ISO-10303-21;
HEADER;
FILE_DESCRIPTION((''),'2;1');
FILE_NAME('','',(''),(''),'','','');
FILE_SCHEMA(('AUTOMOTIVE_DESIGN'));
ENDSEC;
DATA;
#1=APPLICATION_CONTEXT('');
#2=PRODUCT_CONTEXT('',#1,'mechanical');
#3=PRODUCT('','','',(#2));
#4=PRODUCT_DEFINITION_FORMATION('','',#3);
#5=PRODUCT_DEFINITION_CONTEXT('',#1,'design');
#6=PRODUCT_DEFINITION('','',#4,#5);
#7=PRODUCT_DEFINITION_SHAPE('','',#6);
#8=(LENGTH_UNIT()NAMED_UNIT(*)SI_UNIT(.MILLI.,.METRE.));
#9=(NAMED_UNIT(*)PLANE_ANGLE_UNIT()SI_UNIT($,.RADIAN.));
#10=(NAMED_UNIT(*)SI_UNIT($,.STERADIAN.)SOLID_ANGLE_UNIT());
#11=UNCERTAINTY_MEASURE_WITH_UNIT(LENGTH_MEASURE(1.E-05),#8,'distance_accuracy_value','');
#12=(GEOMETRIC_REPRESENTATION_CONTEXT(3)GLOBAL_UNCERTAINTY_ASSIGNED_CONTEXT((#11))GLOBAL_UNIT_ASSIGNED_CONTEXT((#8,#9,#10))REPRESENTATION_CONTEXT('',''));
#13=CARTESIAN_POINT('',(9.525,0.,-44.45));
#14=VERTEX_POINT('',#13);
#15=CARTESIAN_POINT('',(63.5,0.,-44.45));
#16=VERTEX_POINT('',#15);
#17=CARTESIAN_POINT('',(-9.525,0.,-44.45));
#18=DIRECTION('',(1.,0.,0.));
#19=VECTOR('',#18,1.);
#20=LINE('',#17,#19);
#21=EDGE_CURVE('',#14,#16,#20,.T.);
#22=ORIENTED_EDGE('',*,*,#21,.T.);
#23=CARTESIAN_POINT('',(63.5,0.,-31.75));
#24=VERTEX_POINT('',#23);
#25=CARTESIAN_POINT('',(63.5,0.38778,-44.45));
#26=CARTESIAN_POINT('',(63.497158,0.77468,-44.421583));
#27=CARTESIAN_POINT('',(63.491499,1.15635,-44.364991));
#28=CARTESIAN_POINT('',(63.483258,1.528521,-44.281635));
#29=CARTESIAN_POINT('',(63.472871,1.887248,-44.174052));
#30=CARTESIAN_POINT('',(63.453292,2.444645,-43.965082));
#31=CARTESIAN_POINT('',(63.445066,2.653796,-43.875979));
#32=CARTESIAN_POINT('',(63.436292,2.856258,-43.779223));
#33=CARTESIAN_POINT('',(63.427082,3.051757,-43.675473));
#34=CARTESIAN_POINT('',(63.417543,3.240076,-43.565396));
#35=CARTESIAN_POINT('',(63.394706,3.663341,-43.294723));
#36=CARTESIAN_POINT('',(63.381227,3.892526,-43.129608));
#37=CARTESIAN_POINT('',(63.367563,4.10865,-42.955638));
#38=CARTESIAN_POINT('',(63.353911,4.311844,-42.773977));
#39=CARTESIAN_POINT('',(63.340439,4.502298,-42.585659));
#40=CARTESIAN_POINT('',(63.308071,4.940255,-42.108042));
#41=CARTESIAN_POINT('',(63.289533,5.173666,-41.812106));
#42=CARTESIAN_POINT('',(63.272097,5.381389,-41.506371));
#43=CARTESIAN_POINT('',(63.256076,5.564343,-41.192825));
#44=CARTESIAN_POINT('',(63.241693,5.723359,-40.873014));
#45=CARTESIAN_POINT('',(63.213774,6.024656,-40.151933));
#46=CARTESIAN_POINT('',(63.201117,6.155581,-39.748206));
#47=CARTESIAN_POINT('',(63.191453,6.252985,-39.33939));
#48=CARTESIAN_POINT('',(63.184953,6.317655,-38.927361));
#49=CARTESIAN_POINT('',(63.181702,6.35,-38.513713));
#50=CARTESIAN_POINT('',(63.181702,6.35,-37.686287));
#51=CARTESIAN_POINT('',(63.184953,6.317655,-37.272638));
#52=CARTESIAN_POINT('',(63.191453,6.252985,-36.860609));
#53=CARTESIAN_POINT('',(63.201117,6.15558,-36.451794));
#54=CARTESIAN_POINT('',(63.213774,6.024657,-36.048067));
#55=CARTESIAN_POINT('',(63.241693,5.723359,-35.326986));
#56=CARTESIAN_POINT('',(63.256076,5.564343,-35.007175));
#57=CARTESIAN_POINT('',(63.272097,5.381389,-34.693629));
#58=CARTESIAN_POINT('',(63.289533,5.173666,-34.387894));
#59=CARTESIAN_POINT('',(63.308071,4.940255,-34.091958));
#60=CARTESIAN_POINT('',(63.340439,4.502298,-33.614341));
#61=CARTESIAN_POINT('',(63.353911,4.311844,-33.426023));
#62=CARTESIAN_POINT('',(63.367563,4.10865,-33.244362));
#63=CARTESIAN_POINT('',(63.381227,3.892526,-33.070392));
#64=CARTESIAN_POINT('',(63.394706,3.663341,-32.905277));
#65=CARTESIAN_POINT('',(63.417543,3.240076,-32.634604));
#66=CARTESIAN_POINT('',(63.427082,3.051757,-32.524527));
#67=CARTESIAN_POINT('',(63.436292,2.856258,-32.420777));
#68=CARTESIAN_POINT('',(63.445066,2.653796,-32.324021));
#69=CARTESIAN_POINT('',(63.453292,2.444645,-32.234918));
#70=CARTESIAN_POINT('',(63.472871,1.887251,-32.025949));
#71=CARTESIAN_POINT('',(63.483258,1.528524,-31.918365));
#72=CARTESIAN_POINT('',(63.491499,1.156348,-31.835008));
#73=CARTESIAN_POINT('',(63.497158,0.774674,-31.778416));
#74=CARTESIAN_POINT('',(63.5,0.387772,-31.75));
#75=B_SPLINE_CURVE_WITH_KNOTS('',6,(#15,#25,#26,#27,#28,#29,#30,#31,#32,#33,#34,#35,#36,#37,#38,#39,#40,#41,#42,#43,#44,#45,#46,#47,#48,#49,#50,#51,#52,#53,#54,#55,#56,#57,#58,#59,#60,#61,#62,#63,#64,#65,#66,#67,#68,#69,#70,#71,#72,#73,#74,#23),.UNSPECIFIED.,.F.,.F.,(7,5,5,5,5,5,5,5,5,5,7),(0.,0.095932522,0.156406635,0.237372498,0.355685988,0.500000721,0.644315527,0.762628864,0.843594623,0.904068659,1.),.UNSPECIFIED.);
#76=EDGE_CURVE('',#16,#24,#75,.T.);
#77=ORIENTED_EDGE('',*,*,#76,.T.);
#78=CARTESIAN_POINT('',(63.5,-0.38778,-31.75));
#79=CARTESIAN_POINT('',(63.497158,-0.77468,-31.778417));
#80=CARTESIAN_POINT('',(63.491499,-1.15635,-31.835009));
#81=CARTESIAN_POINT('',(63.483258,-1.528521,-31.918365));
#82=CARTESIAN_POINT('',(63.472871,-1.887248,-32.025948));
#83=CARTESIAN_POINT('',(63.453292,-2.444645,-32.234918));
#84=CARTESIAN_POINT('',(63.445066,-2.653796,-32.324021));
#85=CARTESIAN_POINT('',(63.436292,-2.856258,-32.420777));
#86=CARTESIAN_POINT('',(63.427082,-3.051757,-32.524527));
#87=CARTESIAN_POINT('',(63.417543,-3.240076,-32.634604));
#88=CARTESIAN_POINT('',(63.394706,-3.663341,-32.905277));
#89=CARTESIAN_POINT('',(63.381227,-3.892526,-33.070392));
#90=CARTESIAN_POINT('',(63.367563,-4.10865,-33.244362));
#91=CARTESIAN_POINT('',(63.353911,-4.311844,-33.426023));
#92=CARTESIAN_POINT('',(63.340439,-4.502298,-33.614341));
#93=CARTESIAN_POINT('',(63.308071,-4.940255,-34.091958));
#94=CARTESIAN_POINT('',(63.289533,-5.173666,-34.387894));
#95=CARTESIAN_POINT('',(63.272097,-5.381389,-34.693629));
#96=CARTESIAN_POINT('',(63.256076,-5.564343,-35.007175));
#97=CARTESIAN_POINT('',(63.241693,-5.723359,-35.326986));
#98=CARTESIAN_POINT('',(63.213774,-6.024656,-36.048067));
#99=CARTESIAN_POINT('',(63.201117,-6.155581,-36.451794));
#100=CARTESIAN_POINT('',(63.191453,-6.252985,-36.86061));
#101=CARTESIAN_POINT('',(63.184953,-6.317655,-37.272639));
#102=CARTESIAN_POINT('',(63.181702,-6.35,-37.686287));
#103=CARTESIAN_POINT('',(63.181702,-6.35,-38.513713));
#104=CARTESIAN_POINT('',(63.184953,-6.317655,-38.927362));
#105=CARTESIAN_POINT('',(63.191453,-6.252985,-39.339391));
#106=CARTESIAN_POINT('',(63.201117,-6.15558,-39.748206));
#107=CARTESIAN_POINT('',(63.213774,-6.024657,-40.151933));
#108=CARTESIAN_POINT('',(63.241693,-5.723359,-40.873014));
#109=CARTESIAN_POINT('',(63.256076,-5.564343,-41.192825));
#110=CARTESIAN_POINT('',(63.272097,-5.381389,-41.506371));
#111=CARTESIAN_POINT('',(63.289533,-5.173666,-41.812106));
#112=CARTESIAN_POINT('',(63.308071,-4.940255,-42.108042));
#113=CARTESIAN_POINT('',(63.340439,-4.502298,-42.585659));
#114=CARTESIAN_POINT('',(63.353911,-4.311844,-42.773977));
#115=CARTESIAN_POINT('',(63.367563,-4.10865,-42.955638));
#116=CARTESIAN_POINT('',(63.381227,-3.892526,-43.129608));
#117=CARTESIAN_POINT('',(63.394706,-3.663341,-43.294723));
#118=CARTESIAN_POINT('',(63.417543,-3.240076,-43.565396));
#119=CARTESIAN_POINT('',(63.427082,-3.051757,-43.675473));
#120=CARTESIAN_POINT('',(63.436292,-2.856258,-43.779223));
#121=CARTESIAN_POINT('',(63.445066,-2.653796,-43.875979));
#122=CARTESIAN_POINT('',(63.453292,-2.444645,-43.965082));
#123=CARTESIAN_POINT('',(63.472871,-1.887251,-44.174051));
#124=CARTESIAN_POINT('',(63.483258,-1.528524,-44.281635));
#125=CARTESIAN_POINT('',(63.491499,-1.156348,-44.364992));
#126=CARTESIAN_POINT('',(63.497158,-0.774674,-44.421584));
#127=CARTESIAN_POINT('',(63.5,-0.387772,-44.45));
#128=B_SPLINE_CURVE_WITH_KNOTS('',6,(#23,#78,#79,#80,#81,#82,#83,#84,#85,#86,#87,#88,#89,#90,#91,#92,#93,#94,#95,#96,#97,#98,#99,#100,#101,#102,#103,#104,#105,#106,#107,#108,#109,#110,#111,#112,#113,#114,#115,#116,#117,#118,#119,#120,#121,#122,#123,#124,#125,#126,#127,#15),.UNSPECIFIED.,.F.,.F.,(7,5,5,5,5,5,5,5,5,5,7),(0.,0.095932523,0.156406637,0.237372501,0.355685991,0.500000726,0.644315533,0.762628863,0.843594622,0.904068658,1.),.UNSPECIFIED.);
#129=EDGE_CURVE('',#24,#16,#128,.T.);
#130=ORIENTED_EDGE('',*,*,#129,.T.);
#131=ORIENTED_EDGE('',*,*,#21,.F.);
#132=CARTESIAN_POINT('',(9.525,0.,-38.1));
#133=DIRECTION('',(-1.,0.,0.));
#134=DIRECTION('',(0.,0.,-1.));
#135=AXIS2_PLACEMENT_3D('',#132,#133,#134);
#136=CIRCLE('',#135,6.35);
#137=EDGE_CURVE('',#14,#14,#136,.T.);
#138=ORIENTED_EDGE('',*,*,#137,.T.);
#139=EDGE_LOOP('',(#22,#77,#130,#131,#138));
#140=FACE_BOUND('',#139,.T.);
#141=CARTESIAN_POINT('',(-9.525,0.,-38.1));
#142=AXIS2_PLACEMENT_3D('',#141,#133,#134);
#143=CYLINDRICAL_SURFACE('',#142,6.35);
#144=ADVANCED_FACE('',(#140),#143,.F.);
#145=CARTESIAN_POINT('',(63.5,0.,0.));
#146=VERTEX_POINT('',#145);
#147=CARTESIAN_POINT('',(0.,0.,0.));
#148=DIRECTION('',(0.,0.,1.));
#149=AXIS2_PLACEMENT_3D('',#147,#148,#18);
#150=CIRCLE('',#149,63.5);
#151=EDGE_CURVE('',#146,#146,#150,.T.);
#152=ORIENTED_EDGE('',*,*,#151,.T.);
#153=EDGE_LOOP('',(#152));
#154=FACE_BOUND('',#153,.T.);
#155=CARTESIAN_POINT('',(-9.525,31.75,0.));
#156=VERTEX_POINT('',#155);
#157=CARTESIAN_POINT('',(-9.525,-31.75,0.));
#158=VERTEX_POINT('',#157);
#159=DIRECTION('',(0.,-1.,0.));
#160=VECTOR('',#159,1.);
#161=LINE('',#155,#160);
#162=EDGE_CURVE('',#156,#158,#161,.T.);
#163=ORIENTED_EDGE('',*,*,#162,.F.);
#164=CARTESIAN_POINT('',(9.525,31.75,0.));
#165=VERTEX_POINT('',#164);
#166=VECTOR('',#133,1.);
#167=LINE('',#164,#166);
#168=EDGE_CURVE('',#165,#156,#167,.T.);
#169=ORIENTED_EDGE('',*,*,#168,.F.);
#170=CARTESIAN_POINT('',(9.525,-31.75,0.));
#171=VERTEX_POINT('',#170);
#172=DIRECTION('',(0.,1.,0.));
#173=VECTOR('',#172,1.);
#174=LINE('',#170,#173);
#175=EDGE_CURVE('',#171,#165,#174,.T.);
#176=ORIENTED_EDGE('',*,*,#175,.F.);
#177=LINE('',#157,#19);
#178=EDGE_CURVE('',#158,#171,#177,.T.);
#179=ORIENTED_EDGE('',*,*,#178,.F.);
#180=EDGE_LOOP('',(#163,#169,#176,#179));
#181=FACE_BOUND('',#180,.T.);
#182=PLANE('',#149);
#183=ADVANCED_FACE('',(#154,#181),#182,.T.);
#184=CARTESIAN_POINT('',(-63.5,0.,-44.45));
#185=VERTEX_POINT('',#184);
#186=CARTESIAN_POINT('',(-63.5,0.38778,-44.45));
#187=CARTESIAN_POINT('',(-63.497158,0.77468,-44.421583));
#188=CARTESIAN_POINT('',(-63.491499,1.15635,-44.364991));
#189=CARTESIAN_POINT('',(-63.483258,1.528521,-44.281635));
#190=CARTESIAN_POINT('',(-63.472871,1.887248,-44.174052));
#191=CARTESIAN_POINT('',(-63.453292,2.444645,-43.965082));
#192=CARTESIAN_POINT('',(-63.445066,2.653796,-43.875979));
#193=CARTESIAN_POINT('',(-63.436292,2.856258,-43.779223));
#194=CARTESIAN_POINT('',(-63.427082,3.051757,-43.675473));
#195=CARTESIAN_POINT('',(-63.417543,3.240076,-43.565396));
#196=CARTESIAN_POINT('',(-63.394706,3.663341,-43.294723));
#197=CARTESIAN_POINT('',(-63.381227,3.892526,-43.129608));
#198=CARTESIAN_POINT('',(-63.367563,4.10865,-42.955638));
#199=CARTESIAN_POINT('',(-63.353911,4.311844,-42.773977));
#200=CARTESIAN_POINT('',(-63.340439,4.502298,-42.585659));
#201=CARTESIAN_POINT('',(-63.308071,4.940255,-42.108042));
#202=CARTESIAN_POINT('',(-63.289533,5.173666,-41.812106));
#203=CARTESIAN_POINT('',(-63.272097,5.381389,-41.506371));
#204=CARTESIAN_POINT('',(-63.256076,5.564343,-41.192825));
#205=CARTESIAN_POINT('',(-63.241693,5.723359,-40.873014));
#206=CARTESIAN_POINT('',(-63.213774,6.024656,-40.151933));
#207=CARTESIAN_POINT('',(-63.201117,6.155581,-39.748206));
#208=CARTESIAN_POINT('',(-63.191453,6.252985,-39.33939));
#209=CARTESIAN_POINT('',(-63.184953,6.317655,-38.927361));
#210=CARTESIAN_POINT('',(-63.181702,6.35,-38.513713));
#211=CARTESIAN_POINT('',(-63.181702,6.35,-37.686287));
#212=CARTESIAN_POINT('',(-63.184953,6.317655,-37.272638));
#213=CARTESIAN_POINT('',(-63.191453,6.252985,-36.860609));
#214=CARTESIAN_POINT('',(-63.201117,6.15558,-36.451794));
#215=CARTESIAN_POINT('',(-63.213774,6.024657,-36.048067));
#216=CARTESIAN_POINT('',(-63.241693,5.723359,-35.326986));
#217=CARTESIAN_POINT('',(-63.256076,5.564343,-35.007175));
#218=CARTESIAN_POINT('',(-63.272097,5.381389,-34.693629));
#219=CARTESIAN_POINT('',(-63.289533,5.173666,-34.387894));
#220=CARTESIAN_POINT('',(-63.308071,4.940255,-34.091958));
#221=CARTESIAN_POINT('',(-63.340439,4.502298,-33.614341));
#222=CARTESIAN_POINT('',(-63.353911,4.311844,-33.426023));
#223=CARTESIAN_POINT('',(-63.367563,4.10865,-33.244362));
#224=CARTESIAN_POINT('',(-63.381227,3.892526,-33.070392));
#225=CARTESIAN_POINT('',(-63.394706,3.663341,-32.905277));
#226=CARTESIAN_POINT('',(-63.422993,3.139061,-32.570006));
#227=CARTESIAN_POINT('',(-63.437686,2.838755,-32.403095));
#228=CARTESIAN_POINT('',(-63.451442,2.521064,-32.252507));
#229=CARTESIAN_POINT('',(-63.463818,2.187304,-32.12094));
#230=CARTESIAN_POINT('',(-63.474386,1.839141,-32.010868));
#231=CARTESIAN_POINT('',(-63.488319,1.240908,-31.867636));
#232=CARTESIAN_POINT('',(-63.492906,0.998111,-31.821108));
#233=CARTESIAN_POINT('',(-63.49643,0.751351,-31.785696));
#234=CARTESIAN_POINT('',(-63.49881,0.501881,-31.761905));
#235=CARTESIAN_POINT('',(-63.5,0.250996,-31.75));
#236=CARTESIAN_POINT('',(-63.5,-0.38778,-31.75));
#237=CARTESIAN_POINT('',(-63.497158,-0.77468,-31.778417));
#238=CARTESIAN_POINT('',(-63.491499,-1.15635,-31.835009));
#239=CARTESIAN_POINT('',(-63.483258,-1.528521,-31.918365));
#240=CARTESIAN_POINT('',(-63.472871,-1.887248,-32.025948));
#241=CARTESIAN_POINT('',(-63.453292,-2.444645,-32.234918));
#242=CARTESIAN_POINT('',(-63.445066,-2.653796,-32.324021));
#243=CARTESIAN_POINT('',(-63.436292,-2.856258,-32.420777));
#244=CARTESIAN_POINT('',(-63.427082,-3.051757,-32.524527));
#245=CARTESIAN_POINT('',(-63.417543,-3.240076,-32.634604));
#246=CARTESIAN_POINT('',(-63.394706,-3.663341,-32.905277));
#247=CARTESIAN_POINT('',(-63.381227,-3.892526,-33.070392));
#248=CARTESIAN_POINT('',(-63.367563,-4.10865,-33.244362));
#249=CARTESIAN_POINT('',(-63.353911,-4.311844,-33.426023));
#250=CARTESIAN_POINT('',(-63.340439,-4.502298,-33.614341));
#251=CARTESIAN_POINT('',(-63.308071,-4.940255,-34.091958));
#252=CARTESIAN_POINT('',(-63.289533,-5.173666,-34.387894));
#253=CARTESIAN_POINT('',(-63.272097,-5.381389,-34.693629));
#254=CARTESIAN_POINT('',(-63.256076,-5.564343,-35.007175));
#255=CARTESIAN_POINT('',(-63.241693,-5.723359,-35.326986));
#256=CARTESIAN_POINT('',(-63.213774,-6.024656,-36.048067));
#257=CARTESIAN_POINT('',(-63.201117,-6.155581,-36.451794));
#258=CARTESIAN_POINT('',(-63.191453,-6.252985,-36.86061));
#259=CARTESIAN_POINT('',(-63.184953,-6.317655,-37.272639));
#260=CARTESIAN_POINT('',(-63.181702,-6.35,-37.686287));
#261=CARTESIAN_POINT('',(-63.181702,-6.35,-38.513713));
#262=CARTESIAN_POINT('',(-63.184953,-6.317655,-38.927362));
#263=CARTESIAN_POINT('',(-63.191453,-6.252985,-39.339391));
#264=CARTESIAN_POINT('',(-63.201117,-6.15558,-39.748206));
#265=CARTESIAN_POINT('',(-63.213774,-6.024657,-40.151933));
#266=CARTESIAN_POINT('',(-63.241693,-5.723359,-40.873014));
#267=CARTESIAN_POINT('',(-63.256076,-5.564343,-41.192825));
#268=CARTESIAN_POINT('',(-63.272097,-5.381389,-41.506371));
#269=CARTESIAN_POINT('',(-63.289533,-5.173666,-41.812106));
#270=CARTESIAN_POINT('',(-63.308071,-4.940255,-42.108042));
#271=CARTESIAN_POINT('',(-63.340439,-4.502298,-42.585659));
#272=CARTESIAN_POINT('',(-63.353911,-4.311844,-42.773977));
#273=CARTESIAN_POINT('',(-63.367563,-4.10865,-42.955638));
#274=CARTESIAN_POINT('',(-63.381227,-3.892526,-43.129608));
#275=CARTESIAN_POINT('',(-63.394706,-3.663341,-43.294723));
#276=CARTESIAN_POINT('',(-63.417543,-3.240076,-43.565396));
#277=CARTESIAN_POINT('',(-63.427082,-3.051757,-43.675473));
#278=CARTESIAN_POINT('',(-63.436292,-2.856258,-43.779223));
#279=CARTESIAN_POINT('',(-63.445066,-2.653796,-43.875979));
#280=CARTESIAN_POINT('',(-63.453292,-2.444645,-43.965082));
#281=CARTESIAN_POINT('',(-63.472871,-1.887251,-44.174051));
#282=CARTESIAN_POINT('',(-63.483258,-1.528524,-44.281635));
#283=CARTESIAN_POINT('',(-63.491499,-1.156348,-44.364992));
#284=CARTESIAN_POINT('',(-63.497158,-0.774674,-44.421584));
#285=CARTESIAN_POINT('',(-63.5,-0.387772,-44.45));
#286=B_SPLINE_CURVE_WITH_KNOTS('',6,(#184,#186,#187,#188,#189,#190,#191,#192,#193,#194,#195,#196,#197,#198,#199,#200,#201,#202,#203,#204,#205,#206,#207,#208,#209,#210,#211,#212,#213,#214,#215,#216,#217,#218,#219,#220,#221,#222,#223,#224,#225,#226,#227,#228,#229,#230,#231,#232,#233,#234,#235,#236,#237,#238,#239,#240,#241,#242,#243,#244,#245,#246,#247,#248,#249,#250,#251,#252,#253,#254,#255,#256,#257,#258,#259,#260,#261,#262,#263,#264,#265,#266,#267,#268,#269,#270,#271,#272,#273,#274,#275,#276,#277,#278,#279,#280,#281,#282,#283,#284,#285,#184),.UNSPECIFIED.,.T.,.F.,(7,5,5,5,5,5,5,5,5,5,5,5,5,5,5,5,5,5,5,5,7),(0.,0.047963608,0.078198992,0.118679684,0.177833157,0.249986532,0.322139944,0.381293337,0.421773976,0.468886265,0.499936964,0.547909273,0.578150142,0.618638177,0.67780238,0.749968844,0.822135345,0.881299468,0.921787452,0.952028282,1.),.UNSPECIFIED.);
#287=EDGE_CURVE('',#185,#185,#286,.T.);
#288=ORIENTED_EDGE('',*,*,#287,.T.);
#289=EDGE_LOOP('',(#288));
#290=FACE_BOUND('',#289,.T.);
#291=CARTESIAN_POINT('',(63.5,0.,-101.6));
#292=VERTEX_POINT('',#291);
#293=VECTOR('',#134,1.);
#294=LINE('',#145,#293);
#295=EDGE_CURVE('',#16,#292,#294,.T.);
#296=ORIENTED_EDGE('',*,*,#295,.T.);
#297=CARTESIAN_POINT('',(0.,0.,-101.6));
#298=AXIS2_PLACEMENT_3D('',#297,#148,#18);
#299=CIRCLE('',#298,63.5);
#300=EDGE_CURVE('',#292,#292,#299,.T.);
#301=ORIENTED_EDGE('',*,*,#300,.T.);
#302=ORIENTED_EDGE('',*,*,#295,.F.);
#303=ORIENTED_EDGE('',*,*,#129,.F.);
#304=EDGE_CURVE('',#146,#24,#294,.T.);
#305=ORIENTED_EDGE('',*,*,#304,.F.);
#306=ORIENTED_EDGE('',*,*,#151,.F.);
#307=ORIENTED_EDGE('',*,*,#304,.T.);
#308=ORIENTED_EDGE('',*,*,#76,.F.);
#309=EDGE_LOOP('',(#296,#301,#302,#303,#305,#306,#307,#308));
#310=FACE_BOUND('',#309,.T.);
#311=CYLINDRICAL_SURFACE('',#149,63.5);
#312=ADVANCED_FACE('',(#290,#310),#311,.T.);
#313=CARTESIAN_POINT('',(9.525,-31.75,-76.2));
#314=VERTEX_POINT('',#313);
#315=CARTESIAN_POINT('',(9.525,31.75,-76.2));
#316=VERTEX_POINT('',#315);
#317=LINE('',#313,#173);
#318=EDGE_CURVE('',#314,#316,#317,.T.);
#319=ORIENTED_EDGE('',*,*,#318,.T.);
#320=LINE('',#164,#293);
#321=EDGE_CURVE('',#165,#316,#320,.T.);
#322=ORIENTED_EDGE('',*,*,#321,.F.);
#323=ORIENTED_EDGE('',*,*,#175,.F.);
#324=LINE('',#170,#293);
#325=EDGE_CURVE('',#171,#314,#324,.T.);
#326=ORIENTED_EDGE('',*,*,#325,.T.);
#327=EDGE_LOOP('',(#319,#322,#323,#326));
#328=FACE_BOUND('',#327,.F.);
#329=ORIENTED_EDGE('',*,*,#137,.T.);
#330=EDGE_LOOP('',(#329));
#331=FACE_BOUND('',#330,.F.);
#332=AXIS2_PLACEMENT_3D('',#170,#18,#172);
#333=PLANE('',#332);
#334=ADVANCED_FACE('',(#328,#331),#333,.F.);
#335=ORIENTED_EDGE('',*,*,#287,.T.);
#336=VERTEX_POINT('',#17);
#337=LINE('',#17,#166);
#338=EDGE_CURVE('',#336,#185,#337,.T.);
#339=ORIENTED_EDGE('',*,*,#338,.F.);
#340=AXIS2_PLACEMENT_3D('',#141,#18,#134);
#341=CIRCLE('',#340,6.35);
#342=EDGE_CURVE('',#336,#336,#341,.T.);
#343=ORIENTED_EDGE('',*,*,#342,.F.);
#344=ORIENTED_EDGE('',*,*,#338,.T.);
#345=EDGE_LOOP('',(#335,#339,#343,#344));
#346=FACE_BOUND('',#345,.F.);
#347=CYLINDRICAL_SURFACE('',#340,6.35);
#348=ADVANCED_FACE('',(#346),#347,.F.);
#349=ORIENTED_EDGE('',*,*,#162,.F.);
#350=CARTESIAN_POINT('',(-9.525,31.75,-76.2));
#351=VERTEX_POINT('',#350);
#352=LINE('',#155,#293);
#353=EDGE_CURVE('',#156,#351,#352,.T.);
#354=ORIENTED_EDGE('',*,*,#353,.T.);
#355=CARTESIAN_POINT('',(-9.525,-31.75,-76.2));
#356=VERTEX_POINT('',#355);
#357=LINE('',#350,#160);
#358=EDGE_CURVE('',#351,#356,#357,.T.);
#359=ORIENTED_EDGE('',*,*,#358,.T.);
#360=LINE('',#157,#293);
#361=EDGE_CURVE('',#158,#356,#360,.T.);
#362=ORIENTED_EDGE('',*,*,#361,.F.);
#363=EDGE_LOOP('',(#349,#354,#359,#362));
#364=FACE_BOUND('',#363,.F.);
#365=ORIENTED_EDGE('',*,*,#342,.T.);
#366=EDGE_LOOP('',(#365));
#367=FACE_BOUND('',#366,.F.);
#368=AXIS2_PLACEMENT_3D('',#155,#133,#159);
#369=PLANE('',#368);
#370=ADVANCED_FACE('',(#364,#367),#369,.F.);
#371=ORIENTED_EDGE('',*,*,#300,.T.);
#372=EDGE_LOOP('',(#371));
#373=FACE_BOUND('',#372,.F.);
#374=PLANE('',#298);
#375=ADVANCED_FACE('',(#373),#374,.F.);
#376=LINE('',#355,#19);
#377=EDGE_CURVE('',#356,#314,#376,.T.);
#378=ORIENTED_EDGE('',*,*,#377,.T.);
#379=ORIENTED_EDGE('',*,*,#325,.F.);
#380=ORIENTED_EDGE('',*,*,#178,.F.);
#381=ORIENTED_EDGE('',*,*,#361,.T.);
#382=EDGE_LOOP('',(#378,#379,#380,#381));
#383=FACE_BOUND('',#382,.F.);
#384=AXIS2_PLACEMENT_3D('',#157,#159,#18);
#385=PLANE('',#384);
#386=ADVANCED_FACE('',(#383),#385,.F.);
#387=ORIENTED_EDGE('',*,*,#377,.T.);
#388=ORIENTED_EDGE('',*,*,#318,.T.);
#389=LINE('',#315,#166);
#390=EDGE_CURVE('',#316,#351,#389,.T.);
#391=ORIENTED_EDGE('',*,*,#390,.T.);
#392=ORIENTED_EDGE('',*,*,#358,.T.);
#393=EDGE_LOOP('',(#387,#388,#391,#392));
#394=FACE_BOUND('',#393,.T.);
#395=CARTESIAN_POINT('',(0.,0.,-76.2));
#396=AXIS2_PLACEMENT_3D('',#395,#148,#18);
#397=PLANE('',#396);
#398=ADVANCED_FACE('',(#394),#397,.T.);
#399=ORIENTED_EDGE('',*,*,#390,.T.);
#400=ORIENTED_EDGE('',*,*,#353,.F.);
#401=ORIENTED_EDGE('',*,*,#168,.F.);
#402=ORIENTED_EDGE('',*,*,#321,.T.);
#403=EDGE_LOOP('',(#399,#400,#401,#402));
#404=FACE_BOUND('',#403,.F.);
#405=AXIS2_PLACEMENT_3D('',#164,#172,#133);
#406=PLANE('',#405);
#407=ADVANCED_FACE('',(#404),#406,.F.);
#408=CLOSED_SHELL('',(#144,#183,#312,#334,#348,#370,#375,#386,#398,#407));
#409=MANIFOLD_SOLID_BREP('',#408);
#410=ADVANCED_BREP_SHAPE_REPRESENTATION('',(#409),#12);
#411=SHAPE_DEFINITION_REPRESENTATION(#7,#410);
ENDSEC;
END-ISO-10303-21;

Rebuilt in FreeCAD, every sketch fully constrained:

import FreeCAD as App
import Part
import Sketcher

V = App.Vector
Q = App.Units.Quantity

doc = App.newDocument("Part")
body = doc.addObject("PartDesign::Body", "Body")

sketch1 = body.newObject("Sketcher::SketchObject", "Sketch")
sketch1.AttachmentSupport = (doc.getObject("XY_Plane"), [""])
sketch1.MapMode = "FlatFace"
sketch1.addGeometry(Part.Circle(V(0, 0, 0), V(0, 0, 1), 64), False)
sketch1.addConstraint([
    Sketcher.Constraint("Coincident", 0, 3, -1, 1),
    Sketcher.Constraint("Diameter", 0, Q("5 in")),
])
pad1 = body.newObject("PartDesign::Pad", "Pad")
pad1.Profile = sketch1
pad1.Length = Q("4 in")
pad1.Reversed = True

sketch2 = body.newObject("Sketcher::SketchObject", "Sketch001")
sketch2.AttachmentSupport = (doc.getObject("XY_Plane"), [""])
sketch2.MapMode = "FlatFace"
sketch2.addGeometry([
    Part.LineSegment(V(-10, 32, 0), V(-10, -32, 0)),
    Part.LineSegment(V(-10, -32, 0), V(10, -32, 0)),
    Part.LineSegment(V(10, -32, 0), V(10, 32, 0)),
    Part.LineSegment(V(10, 32, 0), V(-10, 32, 0)),
], False)
sketch2.addConstraint([
    Sketcher.Constraint("Coincident", 0, 2, 1, 1),
    Sketcher.Constraint("Coincident", 1, 2, 2, 1),
    Sketcher.Constraint("Coincident", 2, 2, 3, 1),
    Sketcher.Constraint("Coincident", 3, 2, 0, 1),
    Sketcher.Constraint("Vertical", 0),
    Sketcher.Constraint("Horizontal", 1),
    Sketcher.Constraint("Vertical", 2),
    Sketcher.Constraint("Horizontal", 3),
    Sketcher.Constraint("Symmetric", 0, 2, 2, 2, -1, 1),
    Sketcher.Constraint("DistanceY", 0, 2, 0, 1, Q("2.5 in")),
    Sketcher.Constraint("DistanceX", 1, 1, 1, 2, Q("0.75 in")),
])
pocket1 = body.newObject("PartDesign::Pocket", "Pocket")
pocket1.Profile = sketch2
pocket1.Length = Q("3 in")

sketch3 = body.newObject("Sketcher::SketchObject", "Sketch002")
sketch3.AttachmentSupport = (doc.getObject("YZ_Plane"), [""])
sketch3.MapMode = "FlatFace"
sketch3.AttachmentOffset = App.Placement(V(0, 0, -0.375 * 25.4), App.Rotation())
sketch3.addGeometry(Part.Circle(V(0, -38, 0), V(0, 0, 1), 6), False)
sketch3.addConstraint([
    Sketcher.Constraint("PointOnObject", 0, 3, -2),
    Sketcher.Constraint("Diameter", 0, Q("0.5 in")),
    Sketcher.Constraint("DistanceY", 0, 3, -1, 1, Q("1.5 in")),
])
pocket2 = body.newObject("PartDesign::Pocket", "Pocket001")
pocket2.Profile = sketch3
pocket2.Type = "ThroughAll"
pocket2.Midplane = True

doc.recompute()
